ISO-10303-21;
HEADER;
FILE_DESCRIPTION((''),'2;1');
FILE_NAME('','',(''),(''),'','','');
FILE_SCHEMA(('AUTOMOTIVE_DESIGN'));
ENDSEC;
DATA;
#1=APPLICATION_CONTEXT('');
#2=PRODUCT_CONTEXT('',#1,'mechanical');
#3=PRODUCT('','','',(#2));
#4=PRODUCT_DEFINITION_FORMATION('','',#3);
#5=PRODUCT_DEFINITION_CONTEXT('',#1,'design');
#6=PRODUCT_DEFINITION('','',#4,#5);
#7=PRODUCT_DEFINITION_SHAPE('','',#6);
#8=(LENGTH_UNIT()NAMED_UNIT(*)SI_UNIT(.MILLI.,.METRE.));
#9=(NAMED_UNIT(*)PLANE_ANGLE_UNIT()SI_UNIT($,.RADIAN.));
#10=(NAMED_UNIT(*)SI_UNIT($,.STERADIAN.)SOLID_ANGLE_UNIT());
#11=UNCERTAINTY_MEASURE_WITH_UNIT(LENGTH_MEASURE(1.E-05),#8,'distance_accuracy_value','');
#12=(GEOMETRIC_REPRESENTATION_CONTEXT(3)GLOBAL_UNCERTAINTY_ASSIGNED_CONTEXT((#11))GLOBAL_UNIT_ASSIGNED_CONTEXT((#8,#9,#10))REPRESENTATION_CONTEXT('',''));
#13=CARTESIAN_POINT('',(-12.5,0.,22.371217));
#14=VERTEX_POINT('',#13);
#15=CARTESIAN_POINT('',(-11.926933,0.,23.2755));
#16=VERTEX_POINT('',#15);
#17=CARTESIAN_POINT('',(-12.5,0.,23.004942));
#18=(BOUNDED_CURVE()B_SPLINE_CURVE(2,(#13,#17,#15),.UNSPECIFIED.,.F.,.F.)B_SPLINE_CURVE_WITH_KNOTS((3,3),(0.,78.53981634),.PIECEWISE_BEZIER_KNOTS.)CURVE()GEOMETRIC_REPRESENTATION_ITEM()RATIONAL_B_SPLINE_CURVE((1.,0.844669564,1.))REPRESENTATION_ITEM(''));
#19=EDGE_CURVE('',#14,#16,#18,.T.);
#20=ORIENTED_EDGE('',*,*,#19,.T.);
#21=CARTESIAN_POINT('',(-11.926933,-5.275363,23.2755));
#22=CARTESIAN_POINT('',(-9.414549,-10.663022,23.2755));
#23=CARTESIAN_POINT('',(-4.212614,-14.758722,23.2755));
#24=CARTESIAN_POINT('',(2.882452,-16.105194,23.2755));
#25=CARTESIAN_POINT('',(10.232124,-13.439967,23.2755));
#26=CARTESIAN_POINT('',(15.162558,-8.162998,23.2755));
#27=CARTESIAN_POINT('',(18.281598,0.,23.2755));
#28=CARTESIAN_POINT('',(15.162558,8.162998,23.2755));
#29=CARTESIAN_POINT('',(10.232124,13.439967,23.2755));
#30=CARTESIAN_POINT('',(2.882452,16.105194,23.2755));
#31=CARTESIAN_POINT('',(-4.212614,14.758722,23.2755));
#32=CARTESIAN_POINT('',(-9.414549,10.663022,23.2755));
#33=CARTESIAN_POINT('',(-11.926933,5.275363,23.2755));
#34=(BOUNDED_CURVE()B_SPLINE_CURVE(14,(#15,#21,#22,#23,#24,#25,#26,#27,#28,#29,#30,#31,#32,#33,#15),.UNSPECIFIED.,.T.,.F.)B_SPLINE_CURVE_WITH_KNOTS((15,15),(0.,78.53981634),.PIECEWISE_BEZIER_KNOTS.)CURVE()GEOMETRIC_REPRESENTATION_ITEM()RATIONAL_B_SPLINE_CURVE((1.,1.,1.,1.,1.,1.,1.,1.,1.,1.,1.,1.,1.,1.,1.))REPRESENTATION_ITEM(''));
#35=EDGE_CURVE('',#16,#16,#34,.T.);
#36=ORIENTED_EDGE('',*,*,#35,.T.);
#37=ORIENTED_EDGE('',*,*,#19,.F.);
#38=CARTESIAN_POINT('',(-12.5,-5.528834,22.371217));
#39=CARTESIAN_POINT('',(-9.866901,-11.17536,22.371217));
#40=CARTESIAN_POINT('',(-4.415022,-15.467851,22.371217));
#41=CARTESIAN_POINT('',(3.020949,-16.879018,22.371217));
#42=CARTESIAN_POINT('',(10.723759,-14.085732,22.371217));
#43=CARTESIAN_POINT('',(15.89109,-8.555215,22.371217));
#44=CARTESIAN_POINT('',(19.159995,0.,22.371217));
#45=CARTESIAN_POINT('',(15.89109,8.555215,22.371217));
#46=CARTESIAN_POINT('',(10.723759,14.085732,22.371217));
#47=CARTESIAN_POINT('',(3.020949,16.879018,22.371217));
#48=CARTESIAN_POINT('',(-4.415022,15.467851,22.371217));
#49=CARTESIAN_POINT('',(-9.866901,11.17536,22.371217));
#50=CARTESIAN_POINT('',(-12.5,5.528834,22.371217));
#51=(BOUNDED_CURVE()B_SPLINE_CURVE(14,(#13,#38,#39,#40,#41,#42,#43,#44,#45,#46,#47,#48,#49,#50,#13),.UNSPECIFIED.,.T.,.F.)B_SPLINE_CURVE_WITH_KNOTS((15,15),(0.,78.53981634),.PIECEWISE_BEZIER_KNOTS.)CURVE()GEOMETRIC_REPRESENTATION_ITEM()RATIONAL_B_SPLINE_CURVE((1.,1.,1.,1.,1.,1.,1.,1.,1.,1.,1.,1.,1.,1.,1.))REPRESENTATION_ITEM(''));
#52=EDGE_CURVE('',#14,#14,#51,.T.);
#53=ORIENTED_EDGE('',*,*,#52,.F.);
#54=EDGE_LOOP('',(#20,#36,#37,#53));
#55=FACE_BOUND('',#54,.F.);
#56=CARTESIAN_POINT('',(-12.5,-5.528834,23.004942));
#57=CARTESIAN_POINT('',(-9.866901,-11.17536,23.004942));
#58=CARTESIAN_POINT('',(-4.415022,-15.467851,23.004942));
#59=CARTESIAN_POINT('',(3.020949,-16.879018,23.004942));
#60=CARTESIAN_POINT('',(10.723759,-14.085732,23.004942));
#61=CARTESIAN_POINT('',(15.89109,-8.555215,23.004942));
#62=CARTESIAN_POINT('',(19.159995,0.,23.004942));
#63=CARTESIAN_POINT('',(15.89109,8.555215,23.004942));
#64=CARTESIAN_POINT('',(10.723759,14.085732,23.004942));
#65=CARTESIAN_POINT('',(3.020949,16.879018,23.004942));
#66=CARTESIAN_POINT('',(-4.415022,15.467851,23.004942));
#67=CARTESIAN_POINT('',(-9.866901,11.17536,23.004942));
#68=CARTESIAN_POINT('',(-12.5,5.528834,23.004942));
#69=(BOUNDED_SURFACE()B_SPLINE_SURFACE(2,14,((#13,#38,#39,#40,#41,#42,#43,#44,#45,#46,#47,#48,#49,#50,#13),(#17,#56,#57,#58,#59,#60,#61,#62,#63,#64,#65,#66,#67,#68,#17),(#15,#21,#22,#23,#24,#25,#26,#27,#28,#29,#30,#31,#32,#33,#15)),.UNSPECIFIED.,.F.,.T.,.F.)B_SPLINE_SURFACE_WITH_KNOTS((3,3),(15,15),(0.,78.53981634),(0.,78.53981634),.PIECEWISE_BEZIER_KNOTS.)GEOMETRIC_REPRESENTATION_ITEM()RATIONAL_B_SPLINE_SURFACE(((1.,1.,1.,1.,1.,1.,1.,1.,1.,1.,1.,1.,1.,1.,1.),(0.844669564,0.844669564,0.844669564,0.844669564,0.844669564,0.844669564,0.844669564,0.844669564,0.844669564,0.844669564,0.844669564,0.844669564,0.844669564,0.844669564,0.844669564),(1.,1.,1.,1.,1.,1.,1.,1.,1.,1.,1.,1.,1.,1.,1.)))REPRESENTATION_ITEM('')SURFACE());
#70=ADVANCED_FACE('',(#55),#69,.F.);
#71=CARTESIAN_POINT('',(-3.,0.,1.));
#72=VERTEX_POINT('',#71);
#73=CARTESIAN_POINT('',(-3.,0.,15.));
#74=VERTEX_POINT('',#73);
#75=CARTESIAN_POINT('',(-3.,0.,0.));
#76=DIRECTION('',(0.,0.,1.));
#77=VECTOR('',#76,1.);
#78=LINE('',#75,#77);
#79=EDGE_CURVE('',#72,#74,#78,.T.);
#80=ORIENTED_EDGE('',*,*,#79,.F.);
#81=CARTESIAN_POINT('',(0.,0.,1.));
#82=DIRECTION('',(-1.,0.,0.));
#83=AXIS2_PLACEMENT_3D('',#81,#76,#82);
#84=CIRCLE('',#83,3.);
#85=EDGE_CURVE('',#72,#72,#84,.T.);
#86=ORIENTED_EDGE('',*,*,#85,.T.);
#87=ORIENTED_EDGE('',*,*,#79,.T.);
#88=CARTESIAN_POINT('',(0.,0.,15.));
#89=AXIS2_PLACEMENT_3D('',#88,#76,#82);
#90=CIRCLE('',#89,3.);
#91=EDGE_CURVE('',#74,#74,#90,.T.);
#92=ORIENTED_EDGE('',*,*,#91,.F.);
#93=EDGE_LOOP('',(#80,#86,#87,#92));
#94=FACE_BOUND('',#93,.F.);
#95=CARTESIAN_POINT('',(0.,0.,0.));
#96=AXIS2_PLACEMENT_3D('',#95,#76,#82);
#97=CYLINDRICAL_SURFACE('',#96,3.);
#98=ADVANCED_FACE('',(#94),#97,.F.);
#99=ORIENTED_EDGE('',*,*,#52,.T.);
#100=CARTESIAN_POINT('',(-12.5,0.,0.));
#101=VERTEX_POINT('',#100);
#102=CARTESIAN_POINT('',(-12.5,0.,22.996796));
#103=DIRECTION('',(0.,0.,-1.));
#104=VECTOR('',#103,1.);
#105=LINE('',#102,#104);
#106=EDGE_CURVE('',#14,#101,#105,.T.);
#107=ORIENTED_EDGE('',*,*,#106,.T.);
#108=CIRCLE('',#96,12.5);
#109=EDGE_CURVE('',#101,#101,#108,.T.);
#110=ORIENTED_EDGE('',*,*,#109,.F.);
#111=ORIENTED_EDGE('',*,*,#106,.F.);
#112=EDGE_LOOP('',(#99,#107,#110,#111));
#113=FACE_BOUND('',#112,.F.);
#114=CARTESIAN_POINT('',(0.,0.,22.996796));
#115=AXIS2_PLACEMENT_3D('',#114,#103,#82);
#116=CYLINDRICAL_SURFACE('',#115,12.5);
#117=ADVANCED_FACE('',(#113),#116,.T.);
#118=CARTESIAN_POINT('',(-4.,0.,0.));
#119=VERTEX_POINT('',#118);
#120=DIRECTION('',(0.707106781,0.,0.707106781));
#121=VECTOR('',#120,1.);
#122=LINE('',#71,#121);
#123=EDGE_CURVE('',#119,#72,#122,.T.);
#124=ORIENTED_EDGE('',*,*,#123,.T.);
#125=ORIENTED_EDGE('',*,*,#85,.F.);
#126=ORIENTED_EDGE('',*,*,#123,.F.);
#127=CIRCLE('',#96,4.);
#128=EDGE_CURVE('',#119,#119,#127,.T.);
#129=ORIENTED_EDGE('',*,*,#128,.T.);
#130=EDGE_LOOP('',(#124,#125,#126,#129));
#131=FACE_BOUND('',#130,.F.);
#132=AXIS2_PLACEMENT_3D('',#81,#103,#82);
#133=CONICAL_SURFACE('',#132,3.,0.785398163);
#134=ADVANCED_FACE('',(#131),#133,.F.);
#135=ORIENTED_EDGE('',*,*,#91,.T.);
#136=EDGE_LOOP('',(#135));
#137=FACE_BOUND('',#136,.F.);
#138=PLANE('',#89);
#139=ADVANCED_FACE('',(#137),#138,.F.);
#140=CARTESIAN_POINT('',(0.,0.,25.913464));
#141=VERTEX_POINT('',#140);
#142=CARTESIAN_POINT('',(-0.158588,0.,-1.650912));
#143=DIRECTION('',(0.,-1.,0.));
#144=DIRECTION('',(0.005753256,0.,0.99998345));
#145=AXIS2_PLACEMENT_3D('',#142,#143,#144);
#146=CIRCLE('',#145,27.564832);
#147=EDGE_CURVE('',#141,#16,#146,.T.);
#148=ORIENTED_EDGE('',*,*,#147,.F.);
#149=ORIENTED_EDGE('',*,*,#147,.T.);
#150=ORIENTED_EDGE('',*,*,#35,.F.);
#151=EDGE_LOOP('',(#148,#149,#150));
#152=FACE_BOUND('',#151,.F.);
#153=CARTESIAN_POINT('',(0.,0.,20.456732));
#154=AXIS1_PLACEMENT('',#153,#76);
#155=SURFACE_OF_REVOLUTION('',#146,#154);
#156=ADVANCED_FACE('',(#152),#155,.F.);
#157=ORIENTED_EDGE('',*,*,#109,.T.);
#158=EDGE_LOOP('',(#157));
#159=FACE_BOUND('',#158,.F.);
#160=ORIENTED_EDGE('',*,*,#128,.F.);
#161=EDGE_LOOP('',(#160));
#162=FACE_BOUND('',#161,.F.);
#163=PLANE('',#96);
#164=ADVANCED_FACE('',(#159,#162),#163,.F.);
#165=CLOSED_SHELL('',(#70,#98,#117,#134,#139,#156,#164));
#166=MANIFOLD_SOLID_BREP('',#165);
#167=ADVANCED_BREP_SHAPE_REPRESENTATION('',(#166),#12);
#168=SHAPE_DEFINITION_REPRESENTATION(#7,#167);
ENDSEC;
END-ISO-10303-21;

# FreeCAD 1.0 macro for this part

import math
import FreeCAD as App
import Part
import Sketcher


def edges_at(feature, points):
    """Names of the edges that pass closest to the given points."""
    edges = feature.Shape.Edges
    near = lambda p: min(range(len(edges)), key=lambda i: edges[i].distToShape(Part.Vertex(*p))[0])
    return sorted({f"Edge{near(p) + 1}" for p in points})

doc = App.newDocument("Part")
body = doc.addObject("PartDesign::Body", "Body")

# Sketch on XZ plane
sketch1 = doc.addObject("Sketcher::SketchObject", "Sketch")
body.addObject(sketch1)
sketch1.AttachmentSupport = (doc.XZ_Plane, [""])
sketch1.MapMode = "FlatFace"
sketch1.addGeometry(Part.LineSegment(App.Vector(-12.5, 22.996796, 0), App.Vector(-12.5, 0, 0)), False)
sketch1.addGeometry(Part.LineSegment(App.Vector(-12.5, 0, 0), App.Vector(-3, 0, 0)), False)
sketch1.addGeometry(Part.LineSegment(App.Vector(-3, 0, 0), App.Vector(-3, 15, 0)), False)
sketch1.addGeometry(Part.LineSegment(App.Vector(-3, 15, 0), App.Vector(0, 15, 0)), False)
sketch1.addGeometry(Part.LineSegment(App.Vector(0, 15, 0), App.Vector(0, 25.913464, 0)), False)
sketch1.addGeometry(Part.ArcOfCircle(Part.Circle(App.Vector(-0.158588, -1.650912, 0), App.Vector(0, 0, 1), 27.564832), math.radians(89.670361), math.radians(116.597695)), False)
sketch1.addConstraint(Sketcher.Constraint("Coincident", 0, 2, 1, 1))
sketch1.addConstraint(Sketcher.Constraint("Coincident", 1, 2, 2, 1))
sketch1.addConstraint(Sketcher.Constraint("Coincident", 2, 2, 3, 1))
sketch1.addConstraint(Sketcher.Constraint("Coincident", 3, 2, 4, 1))
sketch1.addConstraint(Sketcher.Constraint("Coincident", 4, 2, 5, 1))
sketch1.addConstraint(Sketcher.Constraint("Coincident", 5, 2, 0, 1))
sketch1.addConstraint(Sketcher.Constraint("Vertical", 0))
sketch1.addConstraint(Sketcher.Constraint("Horizontal", 1))
sketch1.addConstraint(Sketcher.Constraint("Vertical", 2))
sketch1.addConstraint(Sketcher.Constraint("Horizontal", 3))
sketch1.addConstraint(Sketcher.Constraint("Vertical", 4))
sketch1.addConstraint(Sketcher.Constraint("PointOnObject", 0, 2, -1))
sketch1.addConstraint(Sketcher.Constraint("PointOnObject", 3, 2, -2))
sketch1.addConstraint(Sketcher.Constraint("DistanceX", 3, 1, 3, 2, 3.0))
sketch1.addConstraint(Sketcher.Constraint("DistanceY", 2, 1, 2, 2, 15.0))
sketch1.addConstraint(Sketcher.Constraint("DistanceX", 1, 1, 1, 2, 9.5))
sketch1.addConstraint(Sketcher.Constraint("Radius", 5, 27.564832))
sketch1.addConstraint(Sketcher.Constraint("DistanceY", 0, 2, 0, 1, 22.996796))
sketch1.addConstraint(Sketcher.Constraint("DistanceY", 4, 1, 4, 2, 10.913464))
revolution = doc.addObject("PartDesign::Revolution", "Revolution")
body.addObject(revolution)
revolution.Profile = sketch1
revolution.ReferenceAxis = (sketch1, ["V_Axis"])
revolution.Angle = 360
doc.recompute()

chamfer = doc.addObject("PartDesign::Chamfer", "Chamfer")
body.addObject(chamfer)
chamfer.Base = (revolution, edges_at(revolution, [(3, 0, 0)]))
chamfer.Size = 1
doc.recompute()

fillet = doc.addObject("PartDesign::Fillet", "Fillet")
body.addObject(fillet)
fillet.Base = (chamfer, edges_at(chamfer, [(12.5, 0, 22.997)]))
fillet.Radius = 1

doc.recompute()
